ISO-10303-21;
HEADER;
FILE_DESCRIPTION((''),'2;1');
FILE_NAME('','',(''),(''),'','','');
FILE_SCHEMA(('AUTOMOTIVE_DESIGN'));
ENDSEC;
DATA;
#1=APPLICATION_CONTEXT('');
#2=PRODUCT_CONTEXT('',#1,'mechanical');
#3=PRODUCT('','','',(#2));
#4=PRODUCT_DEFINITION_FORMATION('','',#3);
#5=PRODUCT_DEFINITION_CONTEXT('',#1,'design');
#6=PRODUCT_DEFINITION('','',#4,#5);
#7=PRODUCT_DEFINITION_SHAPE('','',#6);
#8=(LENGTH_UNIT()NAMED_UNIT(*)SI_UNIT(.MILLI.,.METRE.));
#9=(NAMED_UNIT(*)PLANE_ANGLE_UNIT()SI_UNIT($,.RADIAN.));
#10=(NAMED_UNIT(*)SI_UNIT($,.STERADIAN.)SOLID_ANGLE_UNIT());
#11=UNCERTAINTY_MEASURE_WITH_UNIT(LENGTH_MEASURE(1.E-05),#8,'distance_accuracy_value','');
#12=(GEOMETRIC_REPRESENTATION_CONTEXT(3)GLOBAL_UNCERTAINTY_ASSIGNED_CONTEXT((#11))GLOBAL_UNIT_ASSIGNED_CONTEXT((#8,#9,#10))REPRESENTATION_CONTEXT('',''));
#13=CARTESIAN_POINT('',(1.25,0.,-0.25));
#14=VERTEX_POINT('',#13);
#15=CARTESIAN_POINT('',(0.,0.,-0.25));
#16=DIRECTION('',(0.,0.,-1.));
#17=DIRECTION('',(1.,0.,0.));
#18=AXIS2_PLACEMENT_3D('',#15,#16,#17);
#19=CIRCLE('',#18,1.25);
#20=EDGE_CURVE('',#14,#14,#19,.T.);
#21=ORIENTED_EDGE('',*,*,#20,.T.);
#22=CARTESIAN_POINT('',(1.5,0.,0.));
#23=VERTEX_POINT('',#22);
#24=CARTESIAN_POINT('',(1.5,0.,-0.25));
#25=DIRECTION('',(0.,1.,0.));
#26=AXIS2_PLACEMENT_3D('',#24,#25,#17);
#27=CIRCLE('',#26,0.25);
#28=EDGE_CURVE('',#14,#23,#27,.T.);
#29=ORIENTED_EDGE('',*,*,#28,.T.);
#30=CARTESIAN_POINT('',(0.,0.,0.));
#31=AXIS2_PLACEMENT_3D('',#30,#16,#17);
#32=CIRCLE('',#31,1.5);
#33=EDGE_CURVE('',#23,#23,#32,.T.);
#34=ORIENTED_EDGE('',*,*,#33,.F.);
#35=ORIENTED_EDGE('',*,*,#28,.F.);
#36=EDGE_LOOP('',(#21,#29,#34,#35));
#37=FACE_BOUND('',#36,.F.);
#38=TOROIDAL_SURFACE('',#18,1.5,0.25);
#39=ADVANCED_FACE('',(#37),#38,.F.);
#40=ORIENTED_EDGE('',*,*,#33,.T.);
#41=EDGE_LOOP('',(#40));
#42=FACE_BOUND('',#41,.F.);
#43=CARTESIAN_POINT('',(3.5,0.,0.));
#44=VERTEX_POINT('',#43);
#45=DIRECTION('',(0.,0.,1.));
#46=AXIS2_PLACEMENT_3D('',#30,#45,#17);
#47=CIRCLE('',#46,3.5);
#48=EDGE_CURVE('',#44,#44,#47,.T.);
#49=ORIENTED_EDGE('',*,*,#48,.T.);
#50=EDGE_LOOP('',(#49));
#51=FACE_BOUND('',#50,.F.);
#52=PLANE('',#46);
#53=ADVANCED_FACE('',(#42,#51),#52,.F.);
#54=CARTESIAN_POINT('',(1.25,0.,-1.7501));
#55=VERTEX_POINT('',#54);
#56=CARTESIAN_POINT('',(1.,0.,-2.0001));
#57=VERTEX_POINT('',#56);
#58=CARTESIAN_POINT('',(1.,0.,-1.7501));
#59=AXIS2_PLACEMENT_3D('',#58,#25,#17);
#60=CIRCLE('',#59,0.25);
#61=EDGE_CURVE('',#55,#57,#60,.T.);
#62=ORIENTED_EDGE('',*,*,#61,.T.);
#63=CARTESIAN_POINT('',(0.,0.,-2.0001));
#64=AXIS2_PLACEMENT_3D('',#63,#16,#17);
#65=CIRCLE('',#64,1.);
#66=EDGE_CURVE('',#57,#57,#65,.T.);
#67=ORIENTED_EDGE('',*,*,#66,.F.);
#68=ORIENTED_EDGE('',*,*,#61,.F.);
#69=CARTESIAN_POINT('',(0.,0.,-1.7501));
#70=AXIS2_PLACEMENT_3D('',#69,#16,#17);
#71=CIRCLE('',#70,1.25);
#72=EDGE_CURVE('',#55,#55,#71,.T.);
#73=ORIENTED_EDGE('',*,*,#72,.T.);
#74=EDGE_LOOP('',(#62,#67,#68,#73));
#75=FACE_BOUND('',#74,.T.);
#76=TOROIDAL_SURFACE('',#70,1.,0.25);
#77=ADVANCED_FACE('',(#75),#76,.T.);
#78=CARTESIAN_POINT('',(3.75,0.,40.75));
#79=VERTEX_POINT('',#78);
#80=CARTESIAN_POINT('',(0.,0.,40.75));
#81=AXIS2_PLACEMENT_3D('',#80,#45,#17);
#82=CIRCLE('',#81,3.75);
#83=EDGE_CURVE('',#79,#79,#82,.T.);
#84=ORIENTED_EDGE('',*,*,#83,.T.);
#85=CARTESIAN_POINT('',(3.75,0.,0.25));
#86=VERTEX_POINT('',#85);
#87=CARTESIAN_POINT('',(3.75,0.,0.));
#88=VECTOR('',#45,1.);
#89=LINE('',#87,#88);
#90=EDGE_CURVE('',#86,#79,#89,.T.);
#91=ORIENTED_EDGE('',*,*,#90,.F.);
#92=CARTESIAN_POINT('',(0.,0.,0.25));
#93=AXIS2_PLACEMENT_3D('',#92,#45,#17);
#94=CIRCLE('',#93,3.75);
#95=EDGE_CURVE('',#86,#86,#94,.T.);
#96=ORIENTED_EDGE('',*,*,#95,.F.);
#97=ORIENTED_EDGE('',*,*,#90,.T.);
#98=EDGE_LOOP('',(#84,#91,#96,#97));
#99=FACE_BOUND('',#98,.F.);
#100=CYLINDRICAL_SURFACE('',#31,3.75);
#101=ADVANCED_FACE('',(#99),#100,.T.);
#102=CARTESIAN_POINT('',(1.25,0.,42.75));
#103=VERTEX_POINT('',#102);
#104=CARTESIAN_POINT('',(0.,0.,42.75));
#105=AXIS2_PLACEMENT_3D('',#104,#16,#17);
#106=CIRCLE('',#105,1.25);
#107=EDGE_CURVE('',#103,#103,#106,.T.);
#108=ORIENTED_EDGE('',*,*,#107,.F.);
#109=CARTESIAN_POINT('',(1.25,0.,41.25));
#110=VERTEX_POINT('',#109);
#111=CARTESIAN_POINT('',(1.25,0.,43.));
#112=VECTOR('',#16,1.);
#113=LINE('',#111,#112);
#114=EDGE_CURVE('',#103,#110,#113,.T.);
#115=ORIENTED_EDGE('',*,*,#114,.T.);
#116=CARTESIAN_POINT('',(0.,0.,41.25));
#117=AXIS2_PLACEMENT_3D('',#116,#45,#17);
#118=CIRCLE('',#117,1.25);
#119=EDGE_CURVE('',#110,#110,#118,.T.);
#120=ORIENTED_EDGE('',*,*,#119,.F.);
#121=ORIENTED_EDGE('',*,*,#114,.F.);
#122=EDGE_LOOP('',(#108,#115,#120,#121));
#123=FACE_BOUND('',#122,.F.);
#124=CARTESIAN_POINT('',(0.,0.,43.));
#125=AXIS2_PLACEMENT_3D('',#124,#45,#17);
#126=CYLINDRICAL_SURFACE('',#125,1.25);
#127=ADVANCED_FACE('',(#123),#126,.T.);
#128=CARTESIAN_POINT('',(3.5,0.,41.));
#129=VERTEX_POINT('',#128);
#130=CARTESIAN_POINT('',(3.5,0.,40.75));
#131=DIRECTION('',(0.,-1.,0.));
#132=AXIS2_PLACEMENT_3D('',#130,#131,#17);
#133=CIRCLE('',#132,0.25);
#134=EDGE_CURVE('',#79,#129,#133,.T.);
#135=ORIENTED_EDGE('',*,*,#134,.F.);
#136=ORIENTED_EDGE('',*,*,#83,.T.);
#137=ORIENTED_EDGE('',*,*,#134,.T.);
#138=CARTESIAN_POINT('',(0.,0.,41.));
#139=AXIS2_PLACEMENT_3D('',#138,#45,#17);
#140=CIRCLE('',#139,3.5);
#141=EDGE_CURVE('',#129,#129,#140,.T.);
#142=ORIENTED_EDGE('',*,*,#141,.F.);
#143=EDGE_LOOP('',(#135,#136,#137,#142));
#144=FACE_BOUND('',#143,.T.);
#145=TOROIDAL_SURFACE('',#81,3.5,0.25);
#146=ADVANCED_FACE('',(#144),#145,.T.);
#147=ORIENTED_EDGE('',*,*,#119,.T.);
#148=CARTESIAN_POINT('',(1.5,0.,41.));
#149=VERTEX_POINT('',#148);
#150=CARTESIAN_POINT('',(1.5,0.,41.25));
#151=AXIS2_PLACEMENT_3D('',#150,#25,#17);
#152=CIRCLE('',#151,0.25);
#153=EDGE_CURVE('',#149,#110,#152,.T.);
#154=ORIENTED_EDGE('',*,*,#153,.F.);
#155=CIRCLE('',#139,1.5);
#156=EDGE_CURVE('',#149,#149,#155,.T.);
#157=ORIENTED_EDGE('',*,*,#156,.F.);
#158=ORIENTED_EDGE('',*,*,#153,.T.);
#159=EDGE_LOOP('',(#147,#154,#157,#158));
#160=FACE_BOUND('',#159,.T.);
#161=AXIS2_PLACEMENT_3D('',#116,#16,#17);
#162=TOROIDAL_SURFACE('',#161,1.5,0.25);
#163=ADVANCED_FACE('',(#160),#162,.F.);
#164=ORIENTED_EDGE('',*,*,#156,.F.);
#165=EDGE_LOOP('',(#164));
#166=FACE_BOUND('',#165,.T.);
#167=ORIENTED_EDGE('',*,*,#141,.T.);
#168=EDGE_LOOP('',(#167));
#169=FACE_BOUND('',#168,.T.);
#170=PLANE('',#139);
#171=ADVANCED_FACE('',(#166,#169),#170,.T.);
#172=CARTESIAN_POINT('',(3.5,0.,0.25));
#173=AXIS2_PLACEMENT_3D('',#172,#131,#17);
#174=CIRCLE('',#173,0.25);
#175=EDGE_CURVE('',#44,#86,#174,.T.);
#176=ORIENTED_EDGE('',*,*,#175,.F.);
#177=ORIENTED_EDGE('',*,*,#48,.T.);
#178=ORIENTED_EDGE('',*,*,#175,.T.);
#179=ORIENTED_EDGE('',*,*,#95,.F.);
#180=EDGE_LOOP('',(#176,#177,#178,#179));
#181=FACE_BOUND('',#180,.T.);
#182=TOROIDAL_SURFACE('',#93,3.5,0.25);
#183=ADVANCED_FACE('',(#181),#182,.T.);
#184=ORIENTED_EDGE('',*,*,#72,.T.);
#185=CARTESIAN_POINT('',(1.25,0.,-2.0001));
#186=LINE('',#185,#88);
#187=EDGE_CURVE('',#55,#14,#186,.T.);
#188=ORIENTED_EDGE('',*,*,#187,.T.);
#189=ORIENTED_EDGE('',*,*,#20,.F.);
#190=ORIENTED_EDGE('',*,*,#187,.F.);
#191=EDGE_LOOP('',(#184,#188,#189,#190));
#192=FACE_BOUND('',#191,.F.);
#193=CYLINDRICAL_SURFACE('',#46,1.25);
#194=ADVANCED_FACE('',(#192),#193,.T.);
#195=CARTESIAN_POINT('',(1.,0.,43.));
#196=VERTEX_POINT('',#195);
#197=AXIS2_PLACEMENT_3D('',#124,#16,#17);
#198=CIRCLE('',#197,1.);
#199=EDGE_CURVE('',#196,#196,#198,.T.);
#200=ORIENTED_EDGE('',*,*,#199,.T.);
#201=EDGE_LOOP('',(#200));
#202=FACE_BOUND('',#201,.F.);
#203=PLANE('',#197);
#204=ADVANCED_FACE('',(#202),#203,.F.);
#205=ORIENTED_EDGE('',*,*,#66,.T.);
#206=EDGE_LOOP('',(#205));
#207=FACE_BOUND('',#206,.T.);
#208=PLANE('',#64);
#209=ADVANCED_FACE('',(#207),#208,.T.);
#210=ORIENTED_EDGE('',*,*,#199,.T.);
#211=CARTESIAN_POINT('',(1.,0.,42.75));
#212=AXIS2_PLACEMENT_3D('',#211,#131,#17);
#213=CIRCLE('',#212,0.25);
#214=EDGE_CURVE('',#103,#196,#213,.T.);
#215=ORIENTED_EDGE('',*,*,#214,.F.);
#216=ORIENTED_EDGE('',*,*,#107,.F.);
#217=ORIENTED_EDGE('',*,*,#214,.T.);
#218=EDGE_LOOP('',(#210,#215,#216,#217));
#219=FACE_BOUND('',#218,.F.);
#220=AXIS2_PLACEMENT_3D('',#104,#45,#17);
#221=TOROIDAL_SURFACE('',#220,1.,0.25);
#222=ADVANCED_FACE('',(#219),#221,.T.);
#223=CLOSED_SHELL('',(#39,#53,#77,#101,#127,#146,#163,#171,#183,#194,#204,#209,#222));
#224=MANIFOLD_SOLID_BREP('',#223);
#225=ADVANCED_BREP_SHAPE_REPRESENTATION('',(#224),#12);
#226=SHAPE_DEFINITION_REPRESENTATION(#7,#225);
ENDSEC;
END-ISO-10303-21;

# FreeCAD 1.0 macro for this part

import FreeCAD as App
import Part
import Sketcher

V = App.Vector
Q = App.Units.Quantity


def edges_at(feature, points):
    """Names of the edges that pass closest to the given points."""
    edges = feature.Shape.Edges
    near = lambda p: min(range(len(edges)), key=lambda i: edges[i].distToShape(Part.Vertex(*p))[0])
    return sorted({f"Edge{near(p) + 1}" for p in points})

doc = App.newDocument("Part")
body = doc.addObject("PartDesign::Body", "Body")

sketch1 = body.newObject("Sketcher::SketchObject", "Sketch")
sketch1.AttachmentSupport = (doc.getObject("XY_Plane"), [""])
sketch1.MapMode = "FlatFace"
sketch1.addGeometry(Part.Circle(V(0, 0, 0), V(0, 0, 1), 3.75), False)
sketch1.addConstraint([
    Sketcher.Constraint("Coincident", 0, 3, -1, 1),
    Sketcher.Constraint("Diameter", 0, Q("7.5 mm")),
])
pad1 = body.newObject("PartDesign::Pad", "Pad")
pad1.Profile = sketch1
pad1.Length = 41

sketch2 = body.newObject("Sketcher::SketchObject", "Sketch001")
sketch2.AttachmentSupport = (doc.getObject("XY_Plane"), [""])
sketch2.MapMode = "FlatFace"
sketch2.addGeometry(Part.Circle(V(0, 0, 0), V(0, 0, 1), 1.25), False)
sketch2.addConstraint([
    Sketcher.Constraint("Coincident", 0, 3, -1, 1),
    Sketcher.Constraint("Diameter", 0, Q("2.5 mm")),
])
pad2 = body.newObject("PartDesign::Pad", "Pad001")
pad2.Profile = sketch2
pad2.Length = 2
pad2.Reversed = True

sketch3 = body.newObject("Sketcher::SketchObject", "Sketch002")
sketch3.AttachmentSupport = (doc.getObject("XY_Plane"), [""])
sketch3.MapMode = "FlatFace"
sketch3.AttachmentOffset = App.Placement(V(0, 0, -2), App.Rotation())
sketch3.addGeometry(Part.Circle(V(0, 0, 0), V(0, 0, 1), 1.25), False)
sketch3.addConstraint([
    Sketcher.Constraint("Coincident", 0, 3, -1, 1),
    Sketcher.Constraint("Diameter", 0, Q("2.5 mm")),
])
pad3 = body.newObject("PartDesign::Pad", "Pad002")
pad3.Profile = sketch3
pad3.Type = "TwoLengths"
pad3.Length = 0.0001
pad3.Length2 = 45
pad3.Reversed = True
doc.recompute()

fillet = body.newObject("PartDesign::Fillet", "Fillet")
fillet.Base = (pad3, edges_at(pad3, [
    (-1.25, 0, 43),
    (-1.25, 0, -2),
    (-3.75, 0, 0),
    (-3.75, 0, 41),
    (-1.25, 0, 0),
    (-1.25, 0, 41),
]))
fillet.Radius = 0.25

doc.recompute()
